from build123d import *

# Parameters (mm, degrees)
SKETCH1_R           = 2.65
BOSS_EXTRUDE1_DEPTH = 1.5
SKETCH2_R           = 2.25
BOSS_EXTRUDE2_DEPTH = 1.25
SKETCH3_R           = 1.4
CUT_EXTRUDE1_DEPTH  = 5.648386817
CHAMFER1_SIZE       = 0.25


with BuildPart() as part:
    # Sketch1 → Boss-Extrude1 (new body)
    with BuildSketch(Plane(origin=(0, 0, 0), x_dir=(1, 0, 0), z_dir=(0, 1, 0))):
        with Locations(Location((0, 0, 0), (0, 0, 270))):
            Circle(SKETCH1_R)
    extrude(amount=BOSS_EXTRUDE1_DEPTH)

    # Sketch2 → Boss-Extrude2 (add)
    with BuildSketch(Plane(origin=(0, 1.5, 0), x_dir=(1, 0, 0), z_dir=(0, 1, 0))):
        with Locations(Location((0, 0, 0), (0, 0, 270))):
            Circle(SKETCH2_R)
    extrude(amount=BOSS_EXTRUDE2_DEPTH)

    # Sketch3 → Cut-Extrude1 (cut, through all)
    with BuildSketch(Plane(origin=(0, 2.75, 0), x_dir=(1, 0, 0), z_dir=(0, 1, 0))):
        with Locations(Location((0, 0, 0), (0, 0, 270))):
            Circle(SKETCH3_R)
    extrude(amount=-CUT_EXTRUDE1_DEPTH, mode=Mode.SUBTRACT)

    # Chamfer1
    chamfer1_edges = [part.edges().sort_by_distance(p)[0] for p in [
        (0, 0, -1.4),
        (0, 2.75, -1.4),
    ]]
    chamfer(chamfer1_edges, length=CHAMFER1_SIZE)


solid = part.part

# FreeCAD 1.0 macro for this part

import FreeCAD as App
import Part
import Sketcher

V = App.Vector
Q = App.Units.Quantity


def edges_at(feature, points):
    """Names of the edges that pass closest to the given points."""
    edges = feature.Shape.Edges
    near = lambda p: min(range(len(edges)), key=lambda i: edges[i].distToShape(Part.Vertex(*p))[0])
    return sorted({f"Edge{near(p) + 1}" for p in points})

doc = App.newDocument("Part")
params = doc.addObject("Spreadsheet::Sheet", "Params")
for row, (alias, value) in enumerate([
    ("sketch1_diameter", "5.3 mm"),
    ("pad1_length", "1.5 mm"),
    ("sketch2_diameter", "4.5 mm"),
    ("pad2_length", "1.25 mm"),
    ("sketch3_diameter", "2.8 mm"),
    ("chamfer_size", "0.25 mm"),
], start=1):
    params.set(f"A{row}", alias)
    params.set(f"B{row}", "=" + value)
    params.setAlias(f"B{row}", alias)

body = doc.addObject("PartDesign::Body", "Body")

sketch1 = body.newObject("Sketcher::SketchObject", "Sketch")
sketch1.AttachmentSupport = (doc.getObject("XZ_Plane"), [""])
sketch1.MapMode = "FlatFace"
sketch1.addGeometry(Part.Circle(V(0, 0, 0), V(0, 0, 1), 2.6), False)
sketch1.addConstraint([
    Sketcher.Constraint("Coincident", 0, 3, -1, 1),
    Sketcher.Constraint("Diameter", 0, Q("5.3 mm")),
])
sketch1.setExpression("Constraints[1]", "Params.sketch1_diameter")
pad1 = body.newObject("PartDesign::Pad", "Pad")
pad1.Profile = sketch1
pad1.setExpression("Length", "Params.pad1_length")
pad1.Reversed = True

sketch2 = body.newObject("Sketcher::SketchObject", "Sketch001")
sketch2.AttachmentSupport = (doc.getObject("XZ_Plane"), [""])
sketch2.MapMode = "FlatFace"
sketch2.AttachmentOffset = App.Placement(V(0, 0, -1.5), App.Rotation())
sketch2.addGeometry(Part.Circle(V(0, 0, 0), V(0, 0, 1), 2.2), False)
sketch2.addConstraint([
    Sketcher.Constraint("Coincident", 0, 3, -1, 1),
    Sketcher.Constraint("Diameter", 0, Q("4.5 mm")),
])
sketch2.setExpression("Constraints[1]", "Params.sketch2_diameter")
pad2 = body.newObject("PartDesign::Pad", "Pad001")
pad2.Profile = sketch2
pad2.setExpression("Length", "Params.pad2_length")
pad2.Reversed = True

sketch3 = body.newObject("Sketcher::SketchObject", "Sketch002")
sketch3.AttachmentSupport = (doc.getObject("XZ_Plane"), [""])
sketch3.MapMode = "FlatFace"
sketch3.AttachmentOffset = App.Placement(V(0, 0, -2.75), App.Rotation())
sketch3.addGeometry(Part.Circle(V(0, 0, 0), V(0, 0, 1), 1.4), False)
sketch3.addConstraint([
    Sketcher.Constraint("Coincident", 0, 3, -1, 1),
    Sketcher.Constraint("Diameter", 0, Q("2.8 mm")),
])
sketch3.setExpression("Constraints[1]", "Params.sketch3_diameter")
pocket1 = body.newObject("PartDesign::Pocket", "Pocket")
pocket1.Profile = sketch3
pocket1.Type = "ThroughAll"
pocket1.Reversed = True
doc.recompute()

chamfer = body.newObject("PartDesign::Chamfer", "Chamfer")
chamfer.Base = (pocket1, edges_at(pocket1, [(0, 0, -1.4), (0, 2.75, -1.4)]))
chamfer.setExpression("Size", "Params.chamfer_size")

doc.recompute()
